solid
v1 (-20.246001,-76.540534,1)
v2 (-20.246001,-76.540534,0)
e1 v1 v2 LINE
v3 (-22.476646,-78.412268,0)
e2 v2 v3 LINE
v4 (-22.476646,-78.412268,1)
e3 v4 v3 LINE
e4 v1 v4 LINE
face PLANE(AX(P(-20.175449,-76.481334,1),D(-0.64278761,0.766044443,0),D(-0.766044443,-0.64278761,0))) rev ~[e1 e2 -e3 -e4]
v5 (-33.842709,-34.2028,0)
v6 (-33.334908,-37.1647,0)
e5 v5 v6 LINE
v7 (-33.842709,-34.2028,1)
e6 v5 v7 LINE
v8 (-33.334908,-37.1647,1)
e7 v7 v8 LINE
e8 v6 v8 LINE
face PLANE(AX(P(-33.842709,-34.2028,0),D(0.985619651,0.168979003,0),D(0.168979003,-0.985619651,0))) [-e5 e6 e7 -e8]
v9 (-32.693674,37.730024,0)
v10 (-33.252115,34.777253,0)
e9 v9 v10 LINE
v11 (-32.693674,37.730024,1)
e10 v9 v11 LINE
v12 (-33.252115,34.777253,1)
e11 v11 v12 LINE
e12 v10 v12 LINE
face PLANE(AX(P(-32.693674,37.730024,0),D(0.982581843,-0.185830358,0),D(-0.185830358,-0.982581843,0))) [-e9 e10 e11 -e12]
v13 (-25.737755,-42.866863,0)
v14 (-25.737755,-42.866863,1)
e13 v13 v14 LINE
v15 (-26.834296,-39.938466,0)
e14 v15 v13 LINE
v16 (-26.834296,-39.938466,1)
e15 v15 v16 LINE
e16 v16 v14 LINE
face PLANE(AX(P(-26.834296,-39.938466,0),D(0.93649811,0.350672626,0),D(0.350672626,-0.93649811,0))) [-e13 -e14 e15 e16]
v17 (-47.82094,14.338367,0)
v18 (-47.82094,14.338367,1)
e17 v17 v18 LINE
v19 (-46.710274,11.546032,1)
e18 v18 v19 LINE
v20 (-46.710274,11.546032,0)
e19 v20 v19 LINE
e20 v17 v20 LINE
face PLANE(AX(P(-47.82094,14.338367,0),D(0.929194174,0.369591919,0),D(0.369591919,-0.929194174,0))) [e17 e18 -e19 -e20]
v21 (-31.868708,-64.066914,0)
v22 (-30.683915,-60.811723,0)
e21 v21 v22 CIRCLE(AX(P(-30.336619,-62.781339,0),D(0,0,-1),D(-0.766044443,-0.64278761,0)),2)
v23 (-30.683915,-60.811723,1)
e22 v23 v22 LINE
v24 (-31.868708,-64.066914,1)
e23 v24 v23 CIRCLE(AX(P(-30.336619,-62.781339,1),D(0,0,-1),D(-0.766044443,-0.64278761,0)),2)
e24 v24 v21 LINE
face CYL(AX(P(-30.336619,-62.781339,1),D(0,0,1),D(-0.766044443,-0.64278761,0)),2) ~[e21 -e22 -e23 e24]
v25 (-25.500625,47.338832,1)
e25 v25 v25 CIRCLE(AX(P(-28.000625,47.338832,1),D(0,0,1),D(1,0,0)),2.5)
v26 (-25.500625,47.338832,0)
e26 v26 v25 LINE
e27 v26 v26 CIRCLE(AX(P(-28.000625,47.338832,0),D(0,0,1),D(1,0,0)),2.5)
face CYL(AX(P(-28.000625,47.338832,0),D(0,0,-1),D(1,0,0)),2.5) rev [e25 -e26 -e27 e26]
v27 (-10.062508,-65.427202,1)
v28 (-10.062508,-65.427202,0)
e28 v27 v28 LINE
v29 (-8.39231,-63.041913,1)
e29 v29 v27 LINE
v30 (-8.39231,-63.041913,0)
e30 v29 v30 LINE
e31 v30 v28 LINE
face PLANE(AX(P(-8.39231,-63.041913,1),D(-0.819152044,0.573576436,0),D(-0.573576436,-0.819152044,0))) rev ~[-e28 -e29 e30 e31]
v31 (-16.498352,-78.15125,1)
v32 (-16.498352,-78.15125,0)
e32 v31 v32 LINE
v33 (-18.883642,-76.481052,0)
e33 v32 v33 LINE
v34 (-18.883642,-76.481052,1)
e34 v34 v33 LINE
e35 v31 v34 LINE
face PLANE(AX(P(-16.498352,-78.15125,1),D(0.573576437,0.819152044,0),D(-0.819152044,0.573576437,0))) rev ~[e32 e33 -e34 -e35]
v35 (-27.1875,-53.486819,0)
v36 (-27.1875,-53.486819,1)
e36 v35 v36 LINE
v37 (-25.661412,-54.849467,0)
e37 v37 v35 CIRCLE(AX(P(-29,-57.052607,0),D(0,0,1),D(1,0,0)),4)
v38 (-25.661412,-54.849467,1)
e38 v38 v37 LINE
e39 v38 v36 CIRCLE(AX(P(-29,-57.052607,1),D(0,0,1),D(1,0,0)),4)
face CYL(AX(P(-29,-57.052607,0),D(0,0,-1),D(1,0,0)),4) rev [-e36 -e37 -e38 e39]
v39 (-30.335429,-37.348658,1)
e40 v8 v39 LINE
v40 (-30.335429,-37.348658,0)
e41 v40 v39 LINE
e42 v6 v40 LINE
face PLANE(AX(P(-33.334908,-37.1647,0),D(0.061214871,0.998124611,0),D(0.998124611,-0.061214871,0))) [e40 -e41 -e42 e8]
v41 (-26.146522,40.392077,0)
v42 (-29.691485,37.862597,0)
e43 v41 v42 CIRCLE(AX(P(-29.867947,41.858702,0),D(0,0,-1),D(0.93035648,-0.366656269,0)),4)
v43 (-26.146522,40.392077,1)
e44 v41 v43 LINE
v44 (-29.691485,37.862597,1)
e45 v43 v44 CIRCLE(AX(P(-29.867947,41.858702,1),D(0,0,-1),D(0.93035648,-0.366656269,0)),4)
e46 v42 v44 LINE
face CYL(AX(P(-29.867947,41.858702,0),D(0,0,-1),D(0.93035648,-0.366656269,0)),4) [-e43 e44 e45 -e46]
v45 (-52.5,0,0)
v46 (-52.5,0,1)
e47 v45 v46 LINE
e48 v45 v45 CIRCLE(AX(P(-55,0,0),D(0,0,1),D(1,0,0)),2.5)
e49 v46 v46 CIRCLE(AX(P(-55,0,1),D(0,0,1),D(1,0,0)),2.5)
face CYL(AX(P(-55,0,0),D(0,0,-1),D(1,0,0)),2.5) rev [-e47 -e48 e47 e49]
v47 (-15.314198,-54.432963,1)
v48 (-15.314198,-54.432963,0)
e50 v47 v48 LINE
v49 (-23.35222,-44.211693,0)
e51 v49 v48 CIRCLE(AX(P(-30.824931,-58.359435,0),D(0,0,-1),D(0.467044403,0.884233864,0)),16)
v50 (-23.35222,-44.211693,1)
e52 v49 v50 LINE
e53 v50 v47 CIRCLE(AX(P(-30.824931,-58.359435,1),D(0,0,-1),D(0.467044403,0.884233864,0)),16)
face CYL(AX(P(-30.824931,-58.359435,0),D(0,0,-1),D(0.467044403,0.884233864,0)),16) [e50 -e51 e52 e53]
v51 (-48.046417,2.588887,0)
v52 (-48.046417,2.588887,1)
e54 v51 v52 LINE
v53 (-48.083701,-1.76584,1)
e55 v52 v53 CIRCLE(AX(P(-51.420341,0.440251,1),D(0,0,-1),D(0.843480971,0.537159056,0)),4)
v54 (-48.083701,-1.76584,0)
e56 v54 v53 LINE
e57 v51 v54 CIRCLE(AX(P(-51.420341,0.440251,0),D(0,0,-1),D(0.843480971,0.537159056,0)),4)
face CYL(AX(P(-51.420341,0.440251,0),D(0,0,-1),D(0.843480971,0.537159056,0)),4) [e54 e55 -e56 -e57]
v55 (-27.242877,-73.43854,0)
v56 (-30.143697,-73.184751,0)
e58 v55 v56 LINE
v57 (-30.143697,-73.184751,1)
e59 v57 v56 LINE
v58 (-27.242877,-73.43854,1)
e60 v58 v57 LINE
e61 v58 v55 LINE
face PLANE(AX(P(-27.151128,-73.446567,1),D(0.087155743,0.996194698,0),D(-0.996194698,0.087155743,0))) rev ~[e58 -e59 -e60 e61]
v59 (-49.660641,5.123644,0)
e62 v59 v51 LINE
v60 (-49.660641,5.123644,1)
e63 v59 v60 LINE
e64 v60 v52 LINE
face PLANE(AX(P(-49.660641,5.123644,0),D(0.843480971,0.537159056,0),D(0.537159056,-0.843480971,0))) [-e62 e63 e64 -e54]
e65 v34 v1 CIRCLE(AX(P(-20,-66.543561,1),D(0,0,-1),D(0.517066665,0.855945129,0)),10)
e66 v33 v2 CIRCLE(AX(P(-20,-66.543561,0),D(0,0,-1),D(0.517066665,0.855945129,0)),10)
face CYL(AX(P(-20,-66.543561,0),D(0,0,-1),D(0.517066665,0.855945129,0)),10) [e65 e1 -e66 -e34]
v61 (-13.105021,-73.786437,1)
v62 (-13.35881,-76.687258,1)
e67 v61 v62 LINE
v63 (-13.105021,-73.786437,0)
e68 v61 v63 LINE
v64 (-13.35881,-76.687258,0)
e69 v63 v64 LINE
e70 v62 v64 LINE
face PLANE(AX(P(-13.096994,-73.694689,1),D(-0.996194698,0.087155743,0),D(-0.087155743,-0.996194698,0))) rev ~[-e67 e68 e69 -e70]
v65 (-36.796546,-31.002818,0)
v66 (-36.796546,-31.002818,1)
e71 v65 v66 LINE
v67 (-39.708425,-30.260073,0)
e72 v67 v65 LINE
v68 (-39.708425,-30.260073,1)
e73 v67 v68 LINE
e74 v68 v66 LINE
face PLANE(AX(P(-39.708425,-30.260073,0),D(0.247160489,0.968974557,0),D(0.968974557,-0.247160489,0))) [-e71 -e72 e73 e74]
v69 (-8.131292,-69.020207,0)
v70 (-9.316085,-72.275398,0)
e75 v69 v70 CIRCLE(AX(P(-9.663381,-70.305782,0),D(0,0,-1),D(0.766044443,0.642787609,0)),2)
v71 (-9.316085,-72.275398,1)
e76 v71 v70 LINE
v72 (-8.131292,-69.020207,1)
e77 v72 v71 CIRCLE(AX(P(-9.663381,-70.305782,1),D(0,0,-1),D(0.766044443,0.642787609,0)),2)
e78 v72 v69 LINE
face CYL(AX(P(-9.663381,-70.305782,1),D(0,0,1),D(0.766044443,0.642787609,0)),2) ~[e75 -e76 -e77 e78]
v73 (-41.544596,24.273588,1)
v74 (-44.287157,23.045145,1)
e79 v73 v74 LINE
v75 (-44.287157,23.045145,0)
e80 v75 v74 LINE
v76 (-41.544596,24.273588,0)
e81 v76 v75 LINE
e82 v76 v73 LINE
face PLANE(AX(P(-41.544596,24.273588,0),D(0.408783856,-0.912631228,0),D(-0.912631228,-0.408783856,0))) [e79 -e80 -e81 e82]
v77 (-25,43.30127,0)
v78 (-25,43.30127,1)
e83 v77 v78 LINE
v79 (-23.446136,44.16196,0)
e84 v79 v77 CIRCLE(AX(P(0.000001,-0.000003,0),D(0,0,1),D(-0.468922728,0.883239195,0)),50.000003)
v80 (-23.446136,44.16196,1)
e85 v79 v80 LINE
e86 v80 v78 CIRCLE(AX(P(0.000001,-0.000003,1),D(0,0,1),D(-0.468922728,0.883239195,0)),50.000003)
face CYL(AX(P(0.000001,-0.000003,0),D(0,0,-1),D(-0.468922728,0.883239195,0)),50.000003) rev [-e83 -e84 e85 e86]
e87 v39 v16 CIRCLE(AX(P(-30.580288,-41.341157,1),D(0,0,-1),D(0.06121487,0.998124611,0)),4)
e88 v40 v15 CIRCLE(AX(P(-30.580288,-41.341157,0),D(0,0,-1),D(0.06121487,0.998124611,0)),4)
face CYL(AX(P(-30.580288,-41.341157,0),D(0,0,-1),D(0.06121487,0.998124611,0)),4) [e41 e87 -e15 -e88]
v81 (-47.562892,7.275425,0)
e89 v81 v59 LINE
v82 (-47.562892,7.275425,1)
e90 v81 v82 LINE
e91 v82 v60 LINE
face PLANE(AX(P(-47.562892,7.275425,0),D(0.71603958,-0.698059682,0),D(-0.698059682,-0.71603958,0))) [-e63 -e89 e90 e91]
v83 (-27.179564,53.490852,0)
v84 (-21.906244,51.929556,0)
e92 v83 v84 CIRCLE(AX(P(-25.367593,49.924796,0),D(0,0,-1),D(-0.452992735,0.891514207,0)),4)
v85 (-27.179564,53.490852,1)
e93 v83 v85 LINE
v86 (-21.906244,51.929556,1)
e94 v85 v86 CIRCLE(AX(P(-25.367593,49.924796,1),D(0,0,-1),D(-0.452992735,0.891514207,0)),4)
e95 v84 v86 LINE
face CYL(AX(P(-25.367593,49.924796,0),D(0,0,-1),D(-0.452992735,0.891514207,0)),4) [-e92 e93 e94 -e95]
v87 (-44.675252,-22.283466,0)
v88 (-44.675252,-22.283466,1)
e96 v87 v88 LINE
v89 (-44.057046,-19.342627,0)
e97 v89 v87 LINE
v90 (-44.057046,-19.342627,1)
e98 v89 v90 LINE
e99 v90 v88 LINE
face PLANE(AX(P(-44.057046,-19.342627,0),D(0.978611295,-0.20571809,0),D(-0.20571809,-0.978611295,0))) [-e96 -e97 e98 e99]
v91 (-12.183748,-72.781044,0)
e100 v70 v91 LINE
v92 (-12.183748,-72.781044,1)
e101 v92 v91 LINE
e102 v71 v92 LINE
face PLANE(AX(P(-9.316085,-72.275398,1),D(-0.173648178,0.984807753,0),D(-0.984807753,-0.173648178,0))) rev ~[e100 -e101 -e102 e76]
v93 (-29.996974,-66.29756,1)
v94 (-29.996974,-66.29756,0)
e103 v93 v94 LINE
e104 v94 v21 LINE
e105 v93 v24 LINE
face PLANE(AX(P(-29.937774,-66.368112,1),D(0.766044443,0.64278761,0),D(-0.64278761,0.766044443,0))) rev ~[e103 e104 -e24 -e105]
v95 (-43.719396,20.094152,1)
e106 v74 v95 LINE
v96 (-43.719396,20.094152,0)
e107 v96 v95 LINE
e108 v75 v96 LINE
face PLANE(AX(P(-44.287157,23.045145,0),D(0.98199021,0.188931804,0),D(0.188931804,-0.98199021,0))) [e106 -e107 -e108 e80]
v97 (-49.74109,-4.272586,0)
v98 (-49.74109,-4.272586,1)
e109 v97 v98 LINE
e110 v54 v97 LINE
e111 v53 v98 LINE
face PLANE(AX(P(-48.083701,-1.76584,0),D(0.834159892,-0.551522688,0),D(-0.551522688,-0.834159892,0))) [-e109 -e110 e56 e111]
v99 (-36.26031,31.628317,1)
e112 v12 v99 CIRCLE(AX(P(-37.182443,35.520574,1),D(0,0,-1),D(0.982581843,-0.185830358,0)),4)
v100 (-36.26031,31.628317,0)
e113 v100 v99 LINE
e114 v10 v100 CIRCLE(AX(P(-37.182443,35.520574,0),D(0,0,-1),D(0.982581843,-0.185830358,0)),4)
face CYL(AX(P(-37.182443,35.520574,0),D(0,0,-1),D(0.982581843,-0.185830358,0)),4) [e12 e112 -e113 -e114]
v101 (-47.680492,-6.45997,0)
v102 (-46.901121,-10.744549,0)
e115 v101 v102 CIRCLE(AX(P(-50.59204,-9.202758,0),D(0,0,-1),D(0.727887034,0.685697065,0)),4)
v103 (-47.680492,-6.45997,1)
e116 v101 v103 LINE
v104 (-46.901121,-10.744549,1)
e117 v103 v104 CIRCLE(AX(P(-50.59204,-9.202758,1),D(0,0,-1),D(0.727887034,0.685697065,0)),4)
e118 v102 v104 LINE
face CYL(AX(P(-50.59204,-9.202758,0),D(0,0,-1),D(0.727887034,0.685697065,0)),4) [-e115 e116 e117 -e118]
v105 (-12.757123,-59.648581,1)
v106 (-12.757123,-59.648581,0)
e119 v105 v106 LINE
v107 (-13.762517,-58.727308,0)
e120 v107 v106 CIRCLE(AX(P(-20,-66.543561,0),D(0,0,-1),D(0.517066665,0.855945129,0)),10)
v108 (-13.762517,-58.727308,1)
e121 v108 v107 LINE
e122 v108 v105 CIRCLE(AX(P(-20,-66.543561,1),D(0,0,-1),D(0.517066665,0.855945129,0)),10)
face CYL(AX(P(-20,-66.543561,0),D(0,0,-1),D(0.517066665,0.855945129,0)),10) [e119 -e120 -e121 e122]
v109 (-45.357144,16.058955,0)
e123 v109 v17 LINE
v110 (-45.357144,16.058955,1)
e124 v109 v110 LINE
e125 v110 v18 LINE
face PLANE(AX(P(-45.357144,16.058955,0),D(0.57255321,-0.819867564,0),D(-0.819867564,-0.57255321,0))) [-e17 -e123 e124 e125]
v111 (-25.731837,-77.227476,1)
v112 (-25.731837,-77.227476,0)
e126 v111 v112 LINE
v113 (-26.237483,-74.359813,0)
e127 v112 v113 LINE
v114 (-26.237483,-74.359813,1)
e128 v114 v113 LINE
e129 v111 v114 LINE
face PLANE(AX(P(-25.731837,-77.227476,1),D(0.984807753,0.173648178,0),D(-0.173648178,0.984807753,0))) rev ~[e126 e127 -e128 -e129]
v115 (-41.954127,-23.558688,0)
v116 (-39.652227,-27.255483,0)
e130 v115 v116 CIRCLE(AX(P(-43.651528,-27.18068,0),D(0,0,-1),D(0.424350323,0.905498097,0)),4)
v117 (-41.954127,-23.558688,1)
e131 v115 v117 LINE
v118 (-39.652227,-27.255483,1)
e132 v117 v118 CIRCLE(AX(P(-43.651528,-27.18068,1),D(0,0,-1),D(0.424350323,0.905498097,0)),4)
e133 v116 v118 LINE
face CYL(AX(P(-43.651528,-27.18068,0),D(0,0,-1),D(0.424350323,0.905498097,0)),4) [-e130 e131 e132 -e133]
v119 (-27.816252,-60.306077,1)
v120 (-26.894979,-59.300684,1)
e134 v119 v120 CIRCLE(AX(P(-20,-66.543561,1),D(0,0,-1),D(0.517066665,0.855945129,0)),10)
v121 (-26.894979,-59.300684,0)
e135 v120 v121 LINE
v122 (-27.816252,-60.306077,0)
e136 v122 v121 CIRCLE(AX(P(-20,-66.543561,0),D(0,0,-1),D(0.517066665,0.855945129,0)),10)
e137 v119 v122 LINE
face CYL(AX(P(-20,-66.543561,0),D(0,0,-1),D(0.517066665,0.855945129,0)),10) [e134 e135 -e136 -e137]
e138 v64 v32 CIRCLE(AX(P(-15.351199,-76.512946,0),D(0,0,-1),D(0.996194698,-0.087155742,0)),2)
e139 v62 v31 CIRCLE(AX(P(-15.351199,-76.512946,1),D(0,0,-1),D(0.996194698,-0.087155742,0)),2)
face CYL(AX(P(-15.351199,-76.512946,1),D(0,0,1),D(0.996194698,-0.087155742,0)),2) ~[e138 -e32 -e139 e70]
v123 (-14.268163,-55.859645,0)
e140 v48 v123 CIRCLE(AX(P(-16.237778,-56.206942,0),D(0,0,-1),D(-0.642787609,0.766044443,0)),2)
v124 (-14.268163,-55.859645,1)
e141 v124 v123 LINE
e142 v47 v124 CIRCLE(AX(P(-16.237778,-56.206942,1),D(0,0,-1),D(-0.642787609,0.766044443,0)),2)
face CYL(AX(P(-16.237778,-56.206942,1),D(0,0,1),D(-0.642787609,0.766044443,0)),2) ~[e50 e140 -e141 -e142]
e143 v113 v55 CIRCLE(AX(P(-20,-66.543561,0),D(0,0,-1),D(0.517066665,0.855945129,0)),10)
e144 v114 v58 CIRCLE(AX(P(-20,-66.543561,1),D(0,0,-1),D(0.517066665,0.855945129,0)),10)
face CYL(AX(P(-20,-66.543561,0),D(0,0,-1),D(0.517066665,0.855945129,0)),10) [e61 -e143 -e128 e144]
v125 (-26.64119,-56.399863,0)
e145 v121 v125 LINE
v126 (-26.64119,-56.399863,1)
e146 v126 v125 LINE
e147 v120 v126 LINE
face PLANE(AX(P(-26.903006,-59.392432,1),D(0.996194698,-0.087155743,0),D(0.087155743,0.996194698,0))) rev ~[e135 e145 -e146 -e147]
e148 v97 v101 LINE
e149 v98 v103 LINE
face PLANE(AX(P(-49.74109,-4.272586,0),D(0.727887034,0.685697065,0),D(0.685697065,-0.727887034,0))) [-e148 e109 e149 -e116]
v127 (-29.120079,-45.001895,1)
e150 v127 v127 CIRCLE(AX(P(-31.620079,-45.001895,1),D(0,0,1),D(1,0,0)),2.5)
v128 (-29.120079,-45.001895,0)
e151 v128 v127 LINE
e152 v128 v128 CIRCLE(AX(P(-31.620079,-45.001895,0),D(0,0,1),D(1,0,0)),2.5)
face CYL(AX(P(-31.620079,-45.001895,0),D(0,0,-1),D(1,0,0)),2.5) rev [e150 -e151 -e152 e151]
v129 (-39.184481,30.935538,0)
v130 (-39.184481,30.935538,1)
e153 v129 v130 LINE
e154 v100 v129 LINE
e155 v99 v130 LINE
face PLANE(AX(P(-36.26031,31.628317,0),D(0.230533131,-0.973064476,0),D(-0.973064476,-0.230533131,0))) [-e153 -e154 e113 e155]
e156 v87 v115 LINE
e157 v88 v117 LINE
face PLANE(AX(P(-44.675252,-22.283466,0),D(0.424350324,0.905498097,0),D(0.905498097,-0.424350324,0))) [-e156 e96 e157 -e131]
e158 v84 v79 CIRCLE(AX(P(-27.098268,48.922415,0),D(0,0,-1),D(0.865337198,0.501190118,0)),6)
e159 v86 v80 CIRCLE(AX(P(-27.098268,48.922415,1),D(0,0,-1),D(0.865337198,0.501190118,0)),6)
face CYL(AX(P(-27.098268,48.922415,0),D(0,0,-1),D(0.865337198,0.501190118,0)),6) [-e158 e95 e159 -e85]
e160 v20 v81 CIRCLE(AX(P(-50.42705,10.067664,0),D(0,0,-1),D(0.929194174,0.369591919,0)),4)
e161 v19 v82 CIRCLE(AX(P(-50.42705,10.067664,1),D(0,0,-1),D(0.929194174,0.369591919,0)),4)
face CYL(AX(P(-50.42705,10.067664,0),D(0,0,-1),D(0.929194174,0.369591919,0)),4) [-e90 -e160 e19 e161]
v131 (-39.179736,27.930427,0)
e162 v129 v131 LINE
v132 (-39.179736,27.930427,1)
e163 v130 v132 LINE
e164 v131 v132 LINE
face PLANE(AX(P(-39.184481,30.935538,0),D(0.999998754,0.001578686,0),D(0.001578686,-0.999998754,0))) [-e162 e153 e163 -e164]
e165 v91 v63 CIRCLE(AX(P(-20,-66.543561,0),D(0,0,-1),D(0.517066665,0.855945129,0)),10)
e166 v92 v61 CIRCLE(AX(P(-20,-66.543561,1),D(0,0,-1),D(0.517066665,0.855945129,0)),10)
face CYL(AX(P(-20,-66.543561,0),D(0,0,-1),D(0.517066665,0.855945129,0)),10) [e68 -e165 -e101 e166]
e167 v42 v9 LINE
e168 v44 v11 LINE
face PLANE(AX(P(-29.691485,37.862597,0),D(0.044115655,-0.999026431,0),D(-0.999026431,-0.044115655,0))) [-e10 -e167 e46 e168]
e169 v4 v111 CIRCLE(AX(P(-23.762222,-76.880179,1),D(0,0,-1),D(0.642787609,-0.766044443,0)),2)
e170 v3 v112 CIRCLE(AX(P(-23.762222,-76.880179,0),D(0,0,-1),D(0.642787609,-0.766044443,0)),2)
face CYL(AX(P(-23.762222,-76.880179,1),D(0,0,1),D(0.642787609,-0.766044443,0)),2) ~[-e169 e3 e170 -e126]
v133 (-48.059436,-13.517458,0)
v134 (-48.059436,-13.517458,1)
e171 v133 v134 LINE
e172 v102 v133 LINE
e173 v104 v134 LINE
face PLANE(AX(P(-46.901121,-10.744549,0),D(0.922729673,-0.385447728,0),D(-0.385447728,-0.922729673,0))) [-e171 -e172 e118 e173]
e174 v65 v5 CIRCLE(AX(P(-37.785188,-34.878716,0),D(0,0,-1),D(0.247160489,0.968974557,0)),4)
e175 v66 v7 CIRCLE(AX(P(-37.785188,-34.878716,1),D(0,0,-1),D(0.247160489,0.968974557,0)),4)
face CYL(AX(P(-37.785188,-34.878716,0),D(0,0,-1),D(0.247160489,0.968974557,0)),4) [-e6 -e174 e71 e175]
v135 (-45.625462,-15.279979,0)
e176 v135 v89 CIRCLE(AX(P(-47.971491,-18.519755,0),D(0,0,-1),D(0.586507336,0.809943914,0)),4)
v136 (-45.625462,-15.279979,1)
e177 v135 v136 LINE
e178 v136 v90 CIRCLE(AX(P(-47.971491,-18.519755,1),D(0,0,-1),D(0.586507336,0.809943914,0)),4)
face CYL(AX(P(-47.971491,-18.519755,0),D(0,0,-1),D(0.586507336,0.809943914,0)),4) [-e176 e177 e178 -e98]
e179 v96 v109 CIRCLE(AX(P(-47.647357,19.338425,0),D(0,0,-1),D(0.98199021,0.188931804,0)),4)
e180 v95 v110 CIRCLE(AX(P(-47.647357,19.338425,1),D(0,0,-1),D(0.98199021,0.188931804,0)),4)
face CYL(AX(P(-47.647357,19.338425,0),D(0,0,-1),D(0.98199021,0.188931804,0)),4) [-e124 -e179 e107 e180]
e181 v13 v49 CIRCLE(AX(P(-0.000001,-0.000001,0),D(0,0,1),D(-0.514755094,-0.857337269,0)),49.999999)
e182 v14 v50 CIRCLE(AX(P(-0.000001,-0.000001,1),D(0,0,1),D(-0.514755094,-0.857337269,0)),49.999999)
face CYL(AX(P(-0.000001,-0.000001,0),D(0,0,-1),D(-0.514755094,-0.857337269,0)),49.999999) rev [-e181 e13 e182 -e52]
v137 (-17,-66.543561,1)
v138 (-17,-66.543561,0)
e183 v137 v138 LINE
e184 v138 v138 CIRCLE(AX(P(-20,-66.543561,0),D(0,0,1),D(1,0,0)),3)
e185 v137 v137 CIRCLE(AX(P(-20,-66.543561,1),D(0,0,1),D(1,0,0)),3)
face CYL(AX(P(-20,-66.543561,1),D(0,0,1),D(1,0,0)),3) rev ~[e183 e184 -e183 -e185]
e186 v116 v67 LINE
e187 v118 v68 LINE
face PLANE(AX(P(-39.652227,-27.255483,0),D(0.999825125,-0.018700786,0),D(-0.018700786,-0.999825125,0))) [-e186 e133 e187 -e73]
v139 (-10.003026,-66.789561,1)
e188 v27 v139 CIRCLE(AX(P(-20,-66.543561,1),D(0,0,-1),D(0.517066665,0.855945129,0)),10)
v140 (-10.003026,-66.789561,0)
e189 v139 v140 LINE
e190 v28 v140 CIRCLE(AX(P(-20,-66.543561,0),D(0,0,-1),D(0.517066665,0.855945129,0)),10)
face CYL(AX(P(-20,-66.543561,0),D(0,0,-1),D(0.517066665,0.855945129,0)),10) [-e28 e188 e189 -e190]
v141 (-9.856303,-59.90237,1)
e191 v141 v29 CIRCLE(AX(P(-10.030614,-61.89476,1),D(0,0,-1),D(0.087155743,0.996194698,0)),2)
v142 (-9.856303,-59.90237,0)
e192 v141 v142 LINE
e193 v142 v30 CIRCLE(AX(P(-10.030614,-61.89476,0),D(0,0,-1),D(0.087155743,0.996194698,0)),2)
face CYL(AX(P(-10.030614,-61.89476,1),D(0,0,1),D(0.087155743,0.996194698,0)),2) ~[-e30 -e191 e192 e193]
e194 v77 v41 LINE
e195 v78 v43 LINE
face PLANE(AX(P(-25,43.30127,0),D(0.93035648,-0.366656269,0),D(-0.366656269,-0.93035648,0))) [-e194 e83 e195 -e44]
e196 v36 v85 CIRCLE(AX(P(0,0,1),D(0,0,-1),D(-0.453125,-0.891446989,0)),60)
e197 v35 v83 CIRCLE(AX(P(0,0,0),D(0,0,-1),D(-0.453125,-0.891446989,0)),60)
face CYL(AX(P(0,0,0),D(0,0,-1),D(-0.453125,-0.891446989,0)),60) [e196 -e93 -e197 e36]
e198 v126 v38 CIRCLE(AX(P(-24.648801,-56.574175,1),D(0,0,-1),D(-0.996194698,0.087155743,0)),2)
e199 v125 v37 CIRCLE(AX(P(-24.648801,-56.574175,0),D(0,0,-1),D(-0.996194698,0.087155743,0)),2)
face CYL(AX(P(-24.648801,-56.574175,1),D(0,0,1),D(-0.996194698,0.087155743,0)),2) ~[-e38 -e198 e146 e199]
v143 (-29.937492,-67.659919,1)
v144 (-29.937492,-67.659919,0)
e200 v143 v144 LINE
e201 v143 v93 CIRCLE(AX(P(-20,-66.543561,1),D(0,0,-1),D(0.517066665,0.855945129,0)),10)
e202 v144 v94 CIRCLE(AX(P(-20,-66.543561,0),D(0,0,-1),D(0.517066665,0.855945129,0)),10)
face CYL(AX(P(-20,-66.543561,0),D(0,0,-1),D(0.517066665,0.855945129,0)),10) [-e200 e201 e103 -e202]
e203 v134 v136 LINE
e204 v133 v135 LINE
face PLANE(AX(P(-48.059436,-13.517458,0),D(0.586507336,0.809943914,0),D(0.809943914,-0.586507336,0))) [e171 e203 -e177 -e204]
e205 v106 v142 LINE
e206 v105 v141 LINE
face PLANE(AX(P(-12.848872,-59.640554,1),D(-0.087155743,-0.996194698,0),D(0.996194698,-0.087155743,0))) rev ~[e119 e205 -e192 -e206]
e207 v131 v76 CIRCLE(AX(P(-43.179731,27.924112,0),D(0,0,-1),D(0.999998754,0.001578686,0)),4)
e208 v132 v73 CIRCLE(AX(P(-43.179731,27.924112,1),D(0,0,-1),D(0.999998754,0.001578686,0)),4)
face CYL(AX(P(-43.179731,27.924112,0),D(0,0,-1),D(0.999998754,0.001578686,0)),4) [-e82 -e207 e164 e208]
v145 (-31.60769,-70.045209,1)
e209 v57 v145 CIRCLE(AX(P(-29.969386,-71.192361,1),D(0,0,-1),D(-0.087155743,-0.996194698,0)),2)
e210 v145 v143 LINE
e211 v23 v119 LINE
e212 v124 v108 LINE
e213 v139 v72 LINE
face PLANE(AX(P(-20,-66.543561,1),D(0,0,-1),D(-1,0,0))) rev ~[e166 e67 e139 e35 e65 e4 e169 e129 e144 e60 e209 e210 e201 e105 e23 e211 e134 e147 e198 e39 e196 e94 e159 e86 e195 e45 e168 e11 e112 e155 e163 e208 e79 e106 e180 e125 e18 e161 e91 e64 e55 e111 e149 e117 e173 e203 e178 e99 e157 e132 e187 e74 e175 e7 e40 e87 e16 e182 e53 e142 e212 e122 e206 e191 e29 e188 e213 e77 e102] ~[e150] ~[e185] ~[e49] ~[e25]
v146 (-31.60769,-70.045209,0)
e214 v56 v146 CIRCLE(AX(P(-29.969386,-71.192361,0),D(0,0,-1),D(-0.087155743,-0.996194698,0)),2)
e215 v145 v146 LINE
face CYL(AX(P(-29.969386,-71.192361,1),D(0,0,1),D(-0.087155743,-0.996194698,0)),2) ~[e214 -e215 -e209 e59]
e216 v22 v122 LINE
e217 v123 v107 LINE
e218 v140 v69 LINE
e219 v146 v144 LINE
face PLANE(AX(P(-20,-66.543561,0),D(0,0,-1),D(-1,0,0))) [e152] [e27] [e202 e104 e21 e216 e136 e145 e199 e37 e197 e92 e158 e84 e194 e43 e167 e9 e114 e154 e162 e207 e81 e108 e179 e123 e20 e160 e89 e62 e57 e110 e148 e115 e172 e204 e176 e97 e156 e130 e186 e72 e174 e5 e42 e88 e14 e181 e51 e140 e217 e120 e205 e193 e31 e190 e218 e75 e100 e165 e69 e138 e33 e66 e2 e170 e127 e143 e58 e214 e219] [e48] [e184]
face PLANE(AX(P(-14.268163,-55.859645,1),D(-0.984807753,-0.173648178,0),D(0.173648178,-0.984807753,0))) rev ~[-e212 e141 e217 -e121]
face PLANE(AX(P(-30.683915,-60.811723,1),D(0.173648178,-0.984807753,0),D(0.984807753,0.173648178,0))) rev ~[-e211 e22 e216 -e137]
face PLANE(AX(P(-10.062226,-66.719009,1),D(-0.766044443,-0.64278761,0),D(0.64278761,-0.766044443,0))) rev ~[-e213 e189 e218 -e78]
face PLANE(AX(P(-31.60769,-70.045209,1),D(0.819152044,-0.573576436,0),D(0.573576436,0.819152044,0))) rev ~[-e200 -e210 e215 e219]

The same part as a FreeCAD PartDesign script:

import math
import FreeCAD as App
import Part
import Sketcher
Q = App.Units.Quantity

doc = App.newDocument("Part")
body = doc.addObject("PartDesign::Body", "Body")

# Sketch on XY plane
sketch1 = body.newObject("Sketcher::SketchObject", "Sketch")
sketch1.AttachmentSupport = (doc.getObject("XY_Plane"), [""])
sketch1.MapMode = "FlatFace"
sketch1.addGeometry(Part.LineSegment(App.Vector(-26.146522, 40.392077, 0), App.Vector(-25, 43.30127, 0)), False)
sketch1.addGeometry(Part.ArcOfCircle(Part.Circle(App.Vector(0.000001, -0.000003, 0), App.Vector(0, 0, 1), 50.000003), math.radians(117.964391), math.radians(120)), False)
sketch1.addGeometry(Part.ArcOfCircle(Part.Circle(App.Vector(-27.098268, 48.922415, 0), App.Vector(0, 0, 1), 6), math.radians(-52.505264), math.radians(30.078769)), False)
sketch1.addGeometry(Part.ArcOfCircle(Part.Circle(App.Vector(-25.367593, 49.924796, 0), App.Vector(0, 0, 1), 4), math.radians(30.078769), math.radians(116.935857)), False)
sketch1.addGeometry(Part.ArcOfCircle(Part.Circle(App.Vector(0, 0, 0), App.Vector(0, 0, 1), 60), math.radians(116.935857), math.radians(243.055642)), False)
sketch1.addGeometry(Part.ArcOfCircle(Part.Circle(App.Vector(-29, -57.052607, 0), App.Vector(0, 0, 1), 4), math.radians(0), math.radians(63.055642)), False)
sketch1.addGeometry(Part.LineSegment(App.Vector(-25, -57.052607, 0), App.Vector(-25, -57.883307, 0)), False)
sketch1.addGeometry(Part.ArcOfCircle(Part.Circle(App.Vector(-20, -66.543561, 0), App.Vector(0, 0, 1), 10), math.radians(120), math.radians(418.864306)), False)
sketch1.addGeometry(Part.ArcOfCircle(Part.Circle(App.Vector(-30.824931, -58.359435, 0), App.Vector(0, 0, 1), 16), math.radians(1.34416), math.radians(62.157387)), False)
sketch1.addGeometry(Part.ArcOfCircle(Part.Circle(App.Vector(-0.000001, -0.000001, 0), App.Vector(0, 0, 1), 49.999999), math.radians(-120.981087), math.radians(-117.842613)), False)
sketch1.addGeometry(Part.LineSegment(App.Vector(-25.737755, -42.866863, 0), App.Vector(-26.834296, -39.938466, 0)), False)
sketch1.addGeometry(Part.ArcOfCircle(Part.Circle(App.Vector(-30.580288, -41.341157, 0), App.Vector(0, 0, 1), 4), math.radians(20.528461), math.radians(86.490452)), False)
sketch1.addGeometry(Part.LineSegment(App.Vector(-30.335429, -37.348658, 0), App.Vector(-33.334908, -37.1647, 0)), False)
sketch1.addGeometry(Part.LineSegment(App.Vector(-33.334908, -37.1647, 0), App.Vector(-33.842709, -34.2028, 0)), False)
sketch1.addGeometry(Part.ArcOfCircle(Part.Circle(App.Vector(-37.785188, -34.878716, 0), App.Vector(0, 0, 1), 4), math.radians(9.728461), math.radians(75.690452)), False)
sketch1.addGeometry(Part.LineSegment(App.Vector(-36.796546, -31.002818, 0), App.Vector(-39.708425, -30.260073, 0)), False)
sketch1.addGeometry(Part.LineSegment(App.Vector(-39.708425, -30.260073, 0), App.Vector(-39.652227, -27.255483, 0)), False)
sketch1.addGeometry(Part.ArcOfCircle(Part.Circle(App.Vector(-43.651528, -27.18068, 0), App.Vector(0, 0, 1), 4), math.radians(-1.071539), math.radians(64.890452)), False)
sketch1.addGeometry(Part.LineSegment(App.Vector(-41.954127, -23.558688, 0), App.Vector(-44.675252, -22.283466, 0)), False)
sketch1.addGeometry(Part.LineSegment(App.Vector(-44.675252, -22.283466, 0), App.Vector(-44.057046, -19.342627, 0)), False)
sketch1.addGeometry(Part.ArcOfCircle(Part.Circle(App.Vector(-47.971491, -18.519755, 0), App.Vector(0, 0, 1), 4), math.radians(-11.871539), math.radians(54.090452)), False)
sketch1.addGeometry(Part.LineSegment(App.Vector(-45.625462, -15.279979, 0), App.Vector(-48.059436, -13.517458, 0)), False)
sketch1.addGeometry(Part.LineSegment(App.Vector(-48.059436, -13.517458, 0), App.Vector(-46.901121, -10.744549, 0)), False)
sketch1.addGeometry(Part.ArcOfCircle(Part.Circle(App.Vector(-50.59204, -9.202758, 0), App.Vector(0, 0, 1), 4), math.radians(-22.671539), math.radians(43.290452)), False)
sketch1.addGeometry(Part.LineSegment(App.Vector(-47.680492, -6.45997, 0), App.Vector(-49.74109, -4.272586, 0)), False)
sketch1.addGeometry(Part.LineSegment(App.Vector(-49.74109, -4.272586, 0), App.Vector(-48.083701, -1.76584, 0)), False)
sketch1.addGeometry(Part.ArcOfCircle(Part.Circle(App.Vector(-51.420341, 0.440251, 0), App.Vector(0, 0, 1), 4), math.radians(-33.471539), math.radians(32.490452)), False)
sketch1.addGeometry(Part.LineSegment(App.Vector(-48.046417, 2.588887, 0), App.Vector(-49.660641, 5.123644, 0)), False)
sketch1.addGeometry(Part.LineSegment(App.Vector(-49.660641, 5.123644, 0), App.Vector(-47.562892, 7.275425, 0)), False)
sketch1.addGeometry(Part.ArcOfCircle(Part.Circle(App.Vector(-50.42705, 10.067664, 0), App.Vector(0, 0, 1), 4), math.radians(-44.271539), math.radians(21.690452)), False)
sketch1.addGeometry(Part.LineSegment(App.Vector(-46.710274, 11.546032, 0), App.Vector(-47.82094, 14.338367, 0)), False)
sketch1.addGeometry(Part.LineSegment(App.Vector(-47.82094, 14.338367, 0), App.Vector(-45.357144, 16.058955, 0)), False)
sketch1.addGeometry(Part.ArcOfCircle(Part.Circle(App.Vector(-47.647357, 19.338425, 0), App.Vector(0, 0, 1), 4), math.radians(-55.071539), math.radians(10.890452)), False)
sketch1.addGeometry(Part.LineSegment(App.Vector(-43.719396, 20.094152, 0), App.Vector(-44.287157, 23.045145, 0)), False)
sketch1.addGeometry(Part.LineSegment(App.Vector(-44.287157, 23.045145, 0), App.Vector(-41.544596, 24.273588, 0)), False)
sketch1.addGeometry(Part.ArcOfCircle(Part.Circle(App.Vector(-43.179731, 27.924112, 0), App.Vector(0, 0, 1), 4), math.radians(-65.871539), math.radians(0.090452)), False)
sketch1.addGeometry(Part.LineSegment(App.Vector(-39.179736, 27.930427, 0), App.Vector(-39.184481, 30.935538, 0)), False)
sketch1.addGeometry(Part.LineSegment(App.Vector(-39.184481, 30.935538, 0), App.Vector(-36.26031, 31.628317, 0)), False)
sketch1.addGeometry(Part.ArcOfCircle(Part.Circle(App.Vector(-37.182443, 35.520574, 0), App.Vector(0, 0, 1), 4), math.radians(-76.671539), math.radians(-10.709548)), False)
sketch1.addGeometry(Part.LineSegment(App.Vector(-33.252115, 34.777253, 0), App.Vector(-32.693674, 37.730024, 0)), False)
sketch1.addGeometry(Part.LineSegment(App.Vector(-32.693674, 37.730024, 0), App.Vector(-29.691485, 37.862597, 0)), False)
sketch1.addGeometry(Part.ArcOfCircle(Part.Circle(App.Vector(-29.867947, 41.858702, 0), App.Vector(0, 0, 1), 4), math.radians(-87.471539), math.radians(-21.509548)), False)
sketch1.addGeometry(Part.Circle(App.Vector(-20, -66.543561, 0), App.Vector(0, 0, 1), 5), False)
sketch1.addGeometry(Part.Circle(App.Vector(-31.620079, -45.001895, 0), App.Vector(0, 0, 1), 2.5), False)
sketch1.addGeometry(Part.Circle(App.Vector(-28.000625, 47.338832, 0), App.Vector(0, 0, 1), 2.5), False)
sketch1.addGeometry(Part.Circle(App.Vector(-55, 0, 0), App.Vector(0, 0, 1), 2.5), False)
sketch1.addConstraint(Sketcher.Constraint("Coincident", 0, 2, 1, 2))
sketch1.addConstraint(Sketcher.Constraint("Coincident", 1, 1, 2, 1))
sketch1.addConstraint(Sketcher.Constraint("Tangent", 2, 2, 3, 1))
sketch1.addConstraint(Sketcher.Constraint("Tangent", 3, 2, 4, 1))
sketch1.addConstraint(Sketcher.Constraint("Tangent", 4, 2, 5, 2))
sketch1.addConstraint(Sketcher.Constraint("Tangent", 5, 1, 6, 1))
sketch1.addConstraint(Sketcher.Constraint("Coincident", 6, 2, 7, 1))
sketch1.addConstraint(Sketcher.Constraint("Coincident", 7, 2, 8, 1))
sketch1.addConstraint(Sketcher.Constraint("Tangent", 8, 2, 9, 2))
sketch1.addConstraint(Sketcher.Constraint("Coincident", 9, 1, 10, 1))
sketch1.addConstraint(Sketcher.Constraint("Tangent", 10, 2, 11, 1))
sketch1.addConstraint(Sketcher.Constraint("Tangent", 11, 2, 12, 1))
sketch1.addConstraint(Sketcher.Constraint("Coincident", 12, 2, 13, 1))
sketch1.addConstraint(Sketcher.Constraint("Tangent", 13, 2, 14, 1))
sketch1.addConstraint(Sketcher.Constraint("Tangent", 14, 2, 15, 1))
sketch1.addConstraint(Sketcher.Constraint("Coincident", 15, 2, 16, 1))
sketch1.addConstraint(Sketcher.Constraint("Tangent", 16, 2, 17, 1))
sketch1.addConstraint(Sketcher.Constraint("Tangent", 17, 2, 18, 1))
sketch1.addConstraint(Sketcher.Constraint("Coincident", 18, 2, 19, 1))
sketch1.addConstraint(Sketcher.Constraint("Tangent", 19, 2, 20, 1))
sketch1.addConstraint(Sketcher.Constraint("Tangent", 20, 2, 21, 1))
sketch1.addConstraint(Sketcher.Constraint("Coincident", 21, 2, 22, 1))
sketch1.addConstraint(Sketcher.Constraint("Tangent", 22, 2, 23, 1))
sketch1.addConstraint(Sketcher.Constraint("Tangent", 23, 2, 24, 1))
sketch1.addConstraint(Sketcher.Constraint("Coincident", 24, 2, 25, 1))
sketch1.addConstraint(Sketcher.Constraint("Tangent", 25, 2, 26, 1))
sketch1.addConstraint(Sketcher.Constraint("Tangent", 26, 2, 27, 1))
sketch1.addConstraint(Sketcher.Constraint("Coincident", 27, 2, 28, 1))
sketch1.addConstraint(Sketcher.Constraint("Tangent", 28, 2, 29, 1))
sketch1.addConstraint(Sketcher.Constraint("Tangent", 29, 2, 30, 1))
sketch1.addConstraint(Sketcher.Constraint("Coincident", 30, 2, 31, 1))
sketch1.addConstraint(Sketcher.Constraint("Tangent", 31, 2, 32, 1))
sketch1.addConstraint(Sketcher.Constraint("Tangent", 32, 2, 33, 1))
sketch1.addConstraint(Sketcher.Constraint("Coincident", 33, 2, 34, 1))
sketch1.addConstraint(Sketcher.Constraint("Tangent", 34, 2, 35, 1))
sketch1.addConstraint(Sketcher.Constraint("Tangent", 35, 2, 36, 1))
sketch1.addConstraint(Sketcher.Constraint("Coincident", 36, 2, 37, 1))
sketch1.addConstraint(Sketcher.Constraint("Tangent", 37, 2, 38, 1))
sketch1.addConstraint(Sketcher.Constraint("Tangent", 38, 2, 39, 1))
sketch1.addConstraint(Sketcher.Constraint("Coincident", 39, 2, 40, 1))
sketch1.addConstraint(Sketcher.Constraint("Tangent", 40, 2, 41, 1))
sketch1.addConstraint(Sketcher.Constraint("Tangent", 41, 2, 0, 1))
sketch1.addConstraint(Sketcher.Constraint("Vertical", 6))
sketch1.addConstraint(Sketcher.Constraint("Coincident", 1, 3, -1, 1))
sketch1.addConstraint(Sketcher.Constraint("Coincident", 4, 3, -1, 1))
sketch1.addConstraint(Sketcher.Constraint("Coincident", 9, 3, -1, 1))
sketch1.addConstraint(Sketcher.Constraint("Coincident", 42, 3, 7, 3))
sketch1.addConstraint(Sketcher.Constraint("Equal", 3, 5))
sketch1.addConstraint(Sketcher.Constraint("Equal", 5, 11))
sketch1.addConstraint(Sketcher.Constraint("Equal", 11, 14))
sketch1.addConstraint(Sketcher.Constraint("Equal", 14, 17))
sketch1.addConstraint(Sketcher.Constraint("Equal", 17, 20))
sketch1.addConstraint(Sketcher.Constraint("Equal", 20, 23))
sketch1.addConstraint(Sketcher.Constraint("Equal", 23, 26))
sketch1.addConstraint(Sketcher.Constraint("Equal", 26, 29))
sketch1.addConstraint(Sketcher.Constraint("Equal", 29, 32))
sketch1.addConstraint(Sketcher.Constraint("Equal", 32, 35))
sketch1.addConstraint(Sketcher.Constraint("Equal", 35, 38))
sketch1.addConstraint(Sketcher.Constraint("Equal", 38, 41))
sketch1.addConstraint(Sketcher.Constraint("Equal", 43, 44))
sketch1.addConstraint(Sketcher.Constraint("Equal", 44, 45))
sketch1.addConstraint(Sketcher.Constraint("PointOnObject", 45, 3, -1))
sketch1.addConstraint(Sketcher.Constraint("Vertical", 0, 2, 5, 1))
sketch1.addConstraint(Sketcher.Constraint("Equal", 0, 10))
sketch1.addConstraint(Sketcher.Constraint("Equal", 12, 13))
sketch1.addConstraint(Sketcher.Constraint("Equal", 13, 15))
sketch1.addConstraint(Sketcher.Constraint("Equal", 15, 16))
sketch1.addConstraint(Sketcher.Constraint("Equal", 16, 18))
sketch1.addConstraint(Sketcher.Constraint("Equal", 18, 19))
sketch1.addConstraint(Sketcher.Constraint("Equal", 19, 21))
sketch1.addConstraint(Sketcher.Constraint("Equal", 21, 22))
sketch1.addConstraint(Sketcher.Constraint("Equal", 22, 24))
sketch1.addConstraint(Sketcher.Constraint("Equal", 24, 25))
sketch1.addConstraint(Sketcher.Constraint("Equal", 25, 27))
sketch1.addConstraint(Sketcher.Constraint("Equal", 27, 28))
sketch1.addConstraint(Sketcher.Constraint("Equal", 28, 30))
sketch1.addConstraint(Sketcher.Constraint("Equal", 30, 31))
sketch1.addConstraint(Sketcher.Constraint("Equal", 31, 33))
sketch1.addConstraint(Sketcher.Constraint("Equal", 33, 34))
sketch1.addConstraint(Sketcher.Constraint("Equal", 34, 36))
sketch1.addConstraint(Sketcher.Constraint("Equal", 36, 37))
sketch1.addConstraint(Sketcher.Constraint("Equal", 37, 39))
sketch1.addConstraint(Sketcher.Constraint("Equal", 39, 40))
sketch1.addConstraint(Sketcher.Constraint("Diameter", 42, Q("10 mm")))
sketch1.addConstraint(Sketcher.Constraint("Diameter", 43, Q("5 mm")))
sketch1.addConstraint(Sketcher.Constraint("Radius", 2, Q("6 mm")))
sketch1.addConstraint(Sketcher.Constraint("Radius", 3, Q("4 mm")))
sketch1.addConstraint(Sketcher.Constraint("Radius", 4, Q("60 mm")))
sketch1.addConstraint(Sketcher.Constraint("Radius", 7, Q("10 mm")))
sketch1.addConstraint(Sketcher.Constraint("Radius", 8, Q("16 mm")))
sketch1.addConstraint(Sketcher.Constraint("Radius", 9, Q("49.999999 mm")))
sketch1.addConstraint(Sketcher.Constraint("DistanceX", 5, 3, -1, 1, Q("29 mm")))
sketch1.addConstraint(Sketcher.Constraint("DistanceX", 7, 3, -1, 1, Q("20 mm")))
sketch1.addConstraint(Sketcher.Constraint("DistanceX", 45, 3, -1, 1, Q("55 mm")))
sketch1.addConstraint(Sketcher.Constraint("DistanceY", 6, 2, 6, 1, Q("0.830699 mm")))
sketch1.addConstraint(Sketcher.Constraint("Radius", 1, Q("50.000003 mm")))
sketch1.addConstraint(Sketcher.Constraint("DistanceY", 12, 2, -1, 1, Q("37.1647 mm")))
sketch1.addConstraint(Sketcher.Constraint("DistanceY", 13, 2, -1, 1, Q("34.2028 mm")))
sketch1.addConstraint(Sketcher.Constraint("DistanceX", 25, 2, -1, 1, Q("48.083701 mm")))
sketch1.addConstraint(Sketcher.Constraint("DistanceX", 8, 3, -1, 1, Q("30.824931 mm")))
sketch1.addConstraint(Sketcher.Constraint("DistanceX", 11, 3, -1, 1, Q("30.580288 mm")))
sketch1.addConstraint(Sketcher.Constraint("DistanceY", 17, 3, -1, 1, Q("27.18068 mm")))
sketch1.addConstraint(Sketcher.Constraint("DistanceX", 20, 3, -1, 1, Q("47.971491 mm")))
sketch1.addConstraint(Sketcher.Constraint("DistanceX", 23, 3, -1, 1, Q("50.59204 mm")))
sketch1.addConstraint(Sketcher.Constraint("DistanceY", 23, 3, -1, 1, Q("9.202758 mm")))
sketch1.addConstraint(Sketcher.Constraint("DistanceX", 26, 3, -1, 1, Q("51.420341 mm")))
sketch1.addConstraint(Sketcher.Constraint("DistanceY", -1, 1, 26, 3, Q("0.440251 mm")))
sketch1.addConstraint(Sketcher.Constraint("DistanceX", 29, 3, -1, 1, Q("50.42705 mm")))
sketch1.addConstraint(Sketcher.Constraint("DistanceX", 35, 3, -1, 1, Q("43.179731 mm")))
sketch1.addConstraint(Sketcher.Constraint("DistanceX", 43, 3, -1, 1, Q("31.620079 mm")))
sketch1.addConstraint(Sketcher.Constraint("DistanceY", -1, 1, 44, 3, Q("47.338832 mm")))
sketch1.addConstraint(Sketcher.Constraint("DistanceY", -1, 1, 1, 1, Q("44.16196 mm")))
sketch1.addConstraint(Sketcher.Constraint("DistanceX", 11, 2, -1, 1, Q("30.335429 mm")))
sketch1.addConstraint(Sketcher.Constraint("DistanceY", 14, 2, -1, 1, Q("31.002818 mm")))
sketch1.addConstraint(Sketcher.Constraint("DistanceX", 20, 2, -1, 1, Q("45.625462 mm")))
sketch1.addConstraint(Sketcher.Constraint("DistanceX", 27, 2, -1, 1, Q("49.660641 mm")))
sketch1.addConstraint(Sketcher.Constraint("DistanceY", -1, 1, 29, 2, Q("11.546032 mm")))
sketch1.addConstraint(Sketcher.Constraint("DistanceX", 36, 2, -1, 1, Q("39.184481 mm")))
sketch1.addConstraint(Sketcher.Constraint("DistanceY", -1, 1, 36, 2, Q("30.935538 mm")))
sketch1.addConstraint(Sketcher.Constraint("DistanceX", 37, 2, -1, 1, Q("36.26031 mm")))
sketch1.addConstraint(Sketcher.Constraint("DistanceX", 41, 2, -1, 1, Q("26.146522 mm")))
sketch1.addConstraint(Sketcher.Constraint("Distance", 0, Q("3.126966 mm")))
sketch1.addConstraint(Sketcher.Constraint("DistanceX", 2, 3, -1, 1, Q("27.098268 mm")))
sketch1.addConstraint(Sketcher.Constraint("DistanceX", 32, 3, -1, 1, Q("47.647357 mm")))
sketch1.addConstraint(Sketcher.Constraint("DistanceY", 43, 3, -1, 1, Q("45.001895 mm")))
sketch1.addConstraint(Sketcher.Constraint("DistanceX", 44, 3, -1, 1, Q("28.000625 mm")))
pad1 = body.newObject("PartDesign::Pad", "Pad")
pad1.Profile = sketch1
pad1.Length = 1

# Sketch on XY plane
sketch2 = body.newObject("Sketcher::SketchObject", "Sketch001")
sketch2.AttachmentSupport = (doc.getObject("XY_Plane"), [""])
sketch2.MapMode = "FlatFace"
sketch2.AttachmentOffset = App.Placement(App.Vector(0, 0, 1), App.Rotation())
sketch2.addGeometry(Part.LineSegment(App.Vector(-13.746524, -58.818008, 0), App.Vector(-14.268163, -55.859645, 0)), False)
sketch2.addGeometry(Part.ArcOfCircle(Part.Circle(App.Vector(-16.237778, -56.206942, 0), App.Vector(0, 0, 1), 2), math.radians(10), math.radians(130)), False)
sketch2.addGeometry(Part.LineSegment(App.Vector(-17.523354, -54.674853, 0), App.Vector(-19.824551, -56.605787, 0)), False)
sketch2.addGeometry(Part.ArcOfCircle(Part.Circle(App.Vector(-20.467339, -55.839742, 0), App.Vector(0, 0, 1), 1), math.radians(-125), math.radians(-50)), False)
sketch2.addGeometry(Part.LineSegment(App.Vector(-21.040915, -56.658894, 0), App.Vector(-23.501648, -54.935871, 0)), False)
sketch2.addGeometry(Part.ArcOfCircle(Part.Circle(App.Vector(-24.648801, -56.574175, 0), App.Vector(0, 0, 1), 2), math.radians(55), math.radians(175)), False)
sketch2.addGeometry(Part.LineSegment(App.Vector(-26.64119, -56.399863, 0), App.Vector(-26.903006, -59.392432, 0)), False)
sketch2.addGeometry(Part.ArcOfCircle(Part.Circle(App.Vector(-27.899201, -59.305277, 0), App.Vector(0, 0, 1), 1), math.radians(-80), math.radians(-5)), False)
sketch2.addGeometry(Part.LineSegment(App.Vector(-27.725553, -60.290084, 0), App.Vector(-30.683915, -60.811723, 0)), False)
sketch2.addGeometry(Part.ArcOfCircle(Part.Circle(App.Vector(-30.336619, -62.781339, 0), App.Vector(0, 0, 1), 2), math.radians(100), math.radians(220)), False)
sketch2.addGeometry(Part.LineSegment(App.Vector(-31.868708, -64.066914, 0), App.Vector(-29.937774, -66.368112, 0)), False)
sketch2.addGeometry(Part.ArcOfCircle(Part.Circle(App.Vector(-30.703818, -67.010899, 0), App.Vector(0, 0, 1), 1), math.radians(-35), math.radians(40)), False)
sketch2.addGeometry(Part.LineSegment(App.Vector(-29.884666, -67.584476, 0), App.Vector(-31.60769, -70.045209, 0)), False)
sketch2.addGeometry(Part.ArcOfCircle(Part.Circle(App.Vector(-29.969386, -71.192361, 0), App.Vector(0, 0, 1), 2), math.radians(145), math.radians(265)), False)
sketch2.addGeometry(Part.LineSegment(App.Vector(-30.143697, -73.184751, 0), App.Vector(-27.151128, -73.446567, 0)), False)
sketch2.addGeometry(Part.ArcOfCircle(Part.Circle(App.Vector(-27.238284, -74.442761, 0), App.Vector(0, 0, 1), 1), math.radians(10), math.radians(85)), False)
sketch2.addGeometry(Part.LineSegment(App.Vector(-26.253476, -74.269113, 0), App.Vector(-25.731837, -77.227476, 0)), False)
sketch2.addGeometry(Part.ArcOfCircle(Part.Circle(App.Vector(-23.762222, -76.880179, 0), App.Vector(0, 0, 1), 2), math.radians(-170), math.radians(-50)), False)
sketch2.addGeometry(Part.LineSegment(App.Vector(-22.476646, -78.412268, 0), App.Vector(-20.175449, -76.481334, 0)), False)
sketch2.addGeometry(Part.ArcOfCircle(Part.Circle(App.Vector(-19.532661, -77.247379, 0), App.Vector(0, 0, 1), 1), math.radians(55), math.radians(130)), False)
sketch2.addGeometry(Part.LineSegment(App.Vector(-18.959085, -76.428227, 0), App.Vector(-16.498352, -78.15125, 0)), False)
sketch2.addGeometry(Part.ArcOfCircle(Part.Circle(App.Vector(-15.351199, -76.512946, 0), App.Vector(0, 0, 1), 2), math.radians(-125), math.radians(-5)), False)
sketch2.addGeometry(Part.LineSegment(App.Vector(-13.35881, -76.687258, 0), App.Vector(-13.096994, -73.694689, 0)), False)
sketch2.addGeometry(Part.ArcOfCircle(Part.Circle(App.Vector(-12.100799, -73.781845, 0), App.Vector(0, 0, 1), 1), math.radians(100), math.radians(175)), False)
sketch2.addGeometry(Part.LineSegment(App.Vector(-12.274447, -72.797037, 0), App.Vector(-9.316085, -72.275398, 0)), False)
sketch2.addGeometry(Part.ArcOfCircle(Part.Circle(App.Vector(-9.663381, -70.305782, 0), App.Vector(0, 0, 1), 2), math.radians(-80), math.radians(40)), False)
sketch2.addGeometry(Part.LineSegment(App.Vector(-8.131292, -69.020207, 0), App.Vector(-10.062226, -66.719009, 0)), False)
sketch2.addGeometry(Part.ArcOfCircle(Part.Circle(App.Vector(-9.296182, -66.076222, 0), App.Vector(0, 0, 1), 1), math.radians(145), math.radians(220)), False)
sketch2.addGeometry(Part.LineSegment(App.Vector(-10.115334, -65.502645, 0), App.Vector(-8.39231, -63.041913, 0)), False)
sketch2.addGeometry(Part.ArcOfCircle(Part.Circle(App.Vector(-10.030614, -61.89476, 0), App.Vector(0, 0, 1), 2), math.radians(-35), math.radians(85)), False)
sketch2.addGeometry(Part.LineSegment(App.Vector(-9.856303, -59.90237, 0), App.Vector(-12.848872, -59.640554, 0)), False)
sketch2.addGeometry(Part.ArcOfCircle(Part.Circle(App.Vector(-12.761716, -58.64436, 0), App.Vector(0, 0, 1), 1), math.radians(-170), math.radians(-95)), False)
sketch2.addGeometry(Part.Circle(App.Vector(-20, -66.543561, 0), App.Vector(0, 0, 1), 3), False)
sketch2.addConstraint(Sketcher.Constraint("Tangent", 0, 2, 1, 1))
sketch2.addConstraint(Sketcher.Constraint("Tangent", 1, 2, 2, 1))
sketch2.addConstraint(Sketcher.Constraint("Tangent", 2, 2, 3, 2))
sketch2.addConstraint(Sketcher.Constraint("Tangent", 3, 1, 4, 1))
sketch2.addConstraint(Sketcher.Constraint("Tangent", 4, 2, 5, 1))
sketch2.addConstraint(Sketcher.Constraint("Tangent", 5, 2, 6, 1))
sketch2.addConstraint(Sketcher.Constraint("Tangent", 6, 2, 7, 2))
sketch2.addConstraint(Sketcher.Constraint("Tangent", 7, 1, 8, 1))
sketch2.addConstraint(Sketcher.Constraint("Tangent", 8, 2, 9, 1))
sketch2.addConstraint(Sketcher.Constraint("Tangent", 9, 2, 10, 1))
sketch2.addConstraint(Sketcher.Constraint("Tangent", 10, 2, 11, 2))
sketch2.addConstraint(Sketcher.Constraint("Tangent", 11, 1, 12, 1))
sketch2.addConstraint(Sketcher.Constraint("Tangent", 12, 2, 13, 1))
sketch2.addConstraint(Sketcher.Constraint("Tangent", 13, 2, 14, 1))
sketch2.addConstraint(Sketcher.Constraint("Tangent", 14, 2, 15, 2))
sketch2.addConstraint(Sketcher.Constraint("Tangent", 15, 1, 16, 1))
sketch2.addConstraint(Sketcher.Constraint("Tangent", 16, 2, 17, 1))
sketch2.addConstraint(Sketcher.Constraint("Tangent", 17, 2, 18, 1))
sketch2.addConstraint(Sketcher.Constraint("Tangent", 18, 2, 19, 2))
sketch2.addConstraint(Sketcher.Constraint("Tangent", 19, 1, 20, 1))
sketch2.addConstraint(Sketcher.Constraint("Tangent", 20, 2, 21, 1))
sketch2.addConstraint(Sketcher.Constraint("Tangent", 21, 2, 22, 1))
sketch2.addConstraint(Sketcher.Constraint("Tangent", 22, 2, 23, 2))
sketch2.addConstraint(Sketcher.Constraint("Tangent", 23, 1, 24, 1))
sketch2.addConstraint(Sketcher.Constraint("Tangent", 24, 2, 25, 1))
sketch2.addConstraint(Sketcher.Constraint("Tangent", 25, 2, 26, 1))
sketch2.addConstraint(Sketcher.Constraint("Tangent", 26, 2, 27, 2))
sketch2.addConstraint(Sketcher.Constraint("Tangent", 27, 1, 28, 1))
sketch2.addConstraint(Sketcher.Constraint("Tangent", 28, 2, 29, 1))
sketch2.addConstraint(Sketcher.Constraint("Tangent", 29, 2, 30, 1))
sketch2.addConstraint(Sketcher.Constraint("Tangent", 30, 2, 31, 2))
sketch2.addConstraint(Sketcher.Constraint("Tangent", 31, 1, 0, 1))
sketch2.addConstraint(Sketcher.Constraint("Equal", 1, 5))
sketch2.addConstraint(Sketcher.Constraint("Equal", 3, 7))
sketch2.addConstraint(Sketcher.Constraint("Equal", 5, 9))
sketch2.addConstraint(Sketcher.Constraint("Equal", 7, 11))
sketch2.addConstraint(Sketcher.Constraint("Equal", 9, 13))
sketch2.addConstraint(Sketcher.Constraint("Equal", 11, 15))
sketch2.addConstraint(Sketcher.Constraint("Equal", 13, 17))
sketch2.addConstraint(Sketcher.Constraint("Equal", 15, 19))
sketch2.addConstraint(Sketcher.Constraint("Equal", 17, 21))
sketch2.addConstraint(Sketcher.Constraint("Equal", 19, 23))
sketch2.addConstraint(Sketcher.Constraint("Equal", 21, 25))
sketch2.addConstraint(Sketcher.Constraint("Equal", 23, 27))
sketch2.addConstraint(Sketcher.Constraint("Equal", 25, 29))
sketch2.addConstraint(Sketcher.Constraint("Equal", 27, 31))
sketch2.addConstraint(Sketcher.Constraint("Perpendicular", 0, 8))
sketch2.addConstraint(Sketcher.Constraint("Perpendicular", 2, 10))
sketch2.addConstraint(Sketcher.Constraint("Perpendicular", 4, 12))
sketch2.addConstraint(Sketcher.Constraint("Perpendicular", 6, 14))
sketch2.addConstraint(Sketcher.Constraint("Perpendicular", 8, 16))
sketch2.addConstraint(Sketcher.Constraint("Perpendicular", 10, 18))
sketch2.addConstraint(Sketcher.Constraint("Perpendicular", 12, 20))
sketch2.addConstraint(Sketcher.Constraint("Perpendicular", 14, 22))
sketch2.addConstraint(Sketcher.Constraint("Perpendicular", 16, 24))
sketch2.addConstraint(Sketcher.Constraint("Perpendicular", 18, 26))
sketch2.addConstraint(Sketcher.Constraint("Perpendicular", 20, 28))
sketch2.addConstraint(Sketcher.Constraint("Perpendicular", 22, 30))
sketch2.addConstraint(Sketcher.Constraint("Equal", 0, 2))
sketch2.addConstraint(Sketcher.Constraint("Equal", 2, 4))
sketch2.addConstraint(Sketcher.Constraint("Equal", 4, 6))
sketch2.addConstraint(Sketcher.Constraint("Equal", 6, 8))
sketch2.addConstraint(Sketcher.Constraint("Equal", 8, 10))
sketch2.addConstraint(Sketcher.Constraint("Equal", 10, 12))
sketch2.addConstraint(Sketcher.Constraint("Equal", 12, 14))
sketch2.addConstraint(Sketcher.Constraint("Equal", 14, 16))
sketch2.addConstraint(Sketcher.Constraint("Equal", 16, 18))
sketch2.addConstraint(Sketcher.Constraint("Equal", 18, 20))
sketch2.addConstraint(Sketcher.Constraint("Equal", 20, 22))
sketch2.addConstraint(Sketcher.Constraint("Equal", 22, 24))
sketch2.addConstraint(Sketcher.Constraint("Equal", 24, 26))
sketch2.addConstraint(Sketcher.Constraint("Diameter", 32, Q("6 mm")))
sketch2.addConstraint(Sketcher.Constraint("Radius", 1, Q("2 mm")))
sketch2.addConstraint(Sketcher.Constraint("Radius", 3, Q("1 mm")))
sketch2.addConstraint(Sketcher.Constraint("Angle", 0, Q("100 deg")))
sketch2.addConstraint(Sketcher.Constraint("Angle", 2, Q("-140 deg")))
sketch2.addConstraint(Sketcher.Constraint("Angle", 4, Q("145 deg")))
sketch2.addConstraint(Sketcher.Constraint("Angle", 6, Q("-95 deg")))
sketch2.addConstraint(Sketcher.Constraint("DistanceX", 32, 3, -1, 1, Q("20 mm")))
sketch2.addConstraint(Sketcher.Constraint("Distance", 0, Q("3.004 mm")))
sketch2.addConstraint(Sketcher.Constraint("DistanceX", 5, 3, -1, 1, Q("24.648801 mm")))
sketch2.addConstraint(Sketcher.Constraint("DistanceY", 11, 3, -1, 1, Q("67.010899 mm")))
sketch2.addConstraint(Sketcher.Constraint("DistanceY", 32, 3, 31, 3, Q("7.899201 mm")))
pad2 = body.newObject("PartDesign::Pad", "Pad001")
pad2.Profile = sketch2
pad2.Length = 1
pad2.Reversed = True

doc.recompute()
